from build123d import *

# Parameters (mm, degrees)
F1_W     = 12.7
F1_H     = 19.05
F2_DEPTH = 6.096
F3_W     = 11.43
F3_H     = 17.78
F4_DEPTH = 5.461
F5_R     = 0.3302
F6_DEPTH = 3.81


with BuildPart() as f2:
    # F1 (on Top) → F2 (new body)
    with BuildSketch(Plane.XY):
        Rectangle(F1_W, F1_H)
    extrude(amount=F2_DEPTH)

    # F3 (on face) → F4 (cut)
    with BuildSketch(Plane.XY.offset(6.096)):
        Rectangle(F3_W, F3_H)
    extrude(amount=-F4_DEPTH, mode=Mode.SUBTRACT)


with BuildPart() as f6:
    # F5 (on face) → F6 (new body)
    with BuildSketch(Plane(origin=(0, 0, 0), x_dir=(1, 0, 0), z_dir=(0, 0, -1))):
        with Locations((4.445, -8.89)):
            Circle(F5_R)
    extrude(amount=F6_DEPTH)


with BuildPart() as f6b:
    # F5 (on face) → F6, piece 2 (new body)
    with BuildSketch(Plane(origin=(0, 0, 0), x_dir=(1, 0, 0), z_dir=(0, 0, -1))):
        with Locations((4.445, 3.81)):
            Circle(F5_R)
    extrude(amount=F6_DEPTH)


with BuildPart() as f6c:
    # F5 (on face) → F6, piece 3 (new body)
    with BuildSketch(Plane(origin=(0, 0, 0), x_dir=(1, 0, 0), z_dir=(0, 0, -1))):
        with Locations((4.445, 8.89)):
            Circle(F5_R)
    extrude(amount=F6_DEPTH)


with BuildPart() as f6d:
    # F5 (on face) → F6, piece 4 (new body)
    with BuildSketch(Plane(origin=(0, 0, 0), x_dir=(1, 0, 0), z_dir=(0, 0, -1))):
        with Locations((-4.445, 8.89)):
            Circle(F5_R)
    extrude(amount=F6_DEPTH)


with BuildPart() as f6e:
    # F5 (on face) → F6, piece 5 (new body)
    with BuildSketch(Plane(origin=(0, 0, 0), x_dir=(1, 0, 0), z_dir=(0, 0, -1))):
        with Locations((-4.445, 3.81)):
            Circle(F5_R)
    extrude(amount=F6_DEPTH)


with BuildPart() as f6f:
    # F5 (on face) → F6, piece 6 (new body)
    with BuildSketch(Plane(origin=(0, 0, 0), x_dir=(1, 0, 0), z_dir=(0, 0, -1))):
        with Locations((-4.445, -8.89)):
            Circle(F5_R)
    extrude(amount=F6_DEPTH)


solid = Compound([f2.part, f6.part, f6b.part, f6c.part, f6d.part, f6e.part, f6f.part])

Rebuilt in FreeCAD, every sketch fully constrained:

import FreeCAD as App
import Part
import Sketcher
Q = App.Units.Quantity

doc = App.newDocument("Part")
body = doc.addObject("PartDesign::Body", "Body")

sketch1 = body.newObject("Sketcher::SketchObject", "Sketch")
sketch1.AttachmentSupport = (doc.getObject("XY_Plane"), [""])
sketch1.MapMode = "FlatFace"
sketch1.addGeometry(Part.LineSegment(App.Vector(-6, 10, 0), App.Vector(-6, -10, 0)), False)
sketch1.addGeometry(Part.LineSegment(App.Vector(-6, -10, 0), App.Vector(6, -10, 0)), False)
sketch1.addGeometry(Part.LineSegment(App.Vector(6, -10, 0), App.Vector(6, 10, 0)), False)
sketch1.addGeometry(Part.LineSegment(App.Vector(6, 10, 0), App.Vector(-6, 10, 0)), False)
sketch1.addConstraint(Sketcher.Constraint("Coincident", 0, 2, 1, 1))
sketch1.addConstraint(Sketcher.Constraint("Coincident", 1, 2, 2, 1))
sketch1.addConstraint(Sketcher.Constraint("Coincident", 2, 2, 3, 1))
sketch1.addConstraint(Sketcher.Constraint("Coincident", 3, 2, 0, 1))
sketch1.addConstraint(Sketcher.Constraint("Vertical", 0))
sketch1.addConstraint(Sketcher.Constraint("Horizontal", 1))
sketch1.addConstraint(Sketcher.Constraint("Vertical", 2))
sketch1.addConstraint(Sketcher.Constraint("Horizontal", 3))
sketch1.addConstraint(Sketcher.Constraint("Symmetric", 0, 2, 2, 2, -1, 1))
sketch1.addConstraint(Sketcher.Constraint("DistanceX", 1, 1, 1, 2, Q("0.5 in")))
sketch1.addConstraint(Sketcher.Constraint("DistanceY", 0, 2, 0, 1, Q("0.75 in")))
pad1 = body.newObject("PartDesign::Pad", "Pad")
pad1.Profile = sketch1
pad1.Length = Q("0.24 in")

sketch2 = body.newObject("Sketcher::SketchObject", "Sketch001")
sketch2.AttachmentSupport = (doc.getObject("XY_Plane"), [""])
sketch2.MapMode = "FlatFace"
sketch2.AttachmentOffset = App.Placement(App.Vector(0, 0, 0.24 * 25.4), App.Rotation())
sketch2.addGeometry(Part.LineSegment(App.Vector(-6, 9, 0), App.Vector(-6, -9, 0)), False)
sketch2.addGeometry(Part.LineSegment(App.Vector(-6, -9, 0), App.Vector(6, -9, 0)), False)
sketch2.addGeometry(Part.LineSegment(App.Vector(6, -9, 0), App.Vector(6, 9, 0)), False)
sketch2.addGeometry(Part.LineSegment(App.Vector(6, 9, 0), App.Vector(-6, 9, 0)), False)
sketch2.addConstraint(Sketcher.Constraint("Coincident", 0, 2, 1, 1))
sketch2.addConstraint(Sketcher.Constraint("Coincident", 1, 2, 2, 1))
sketch2.addConstraint(Sketcher.Constraint("Coincident", 2, 2, 3, 1))
sketch2.addConstraint(Sketcher.Constraint("Coincident", 3, 2, 0, 1))
sketch2.addConstraint(Sketcher.Constraint("Vertical", 0))
sketch2.addConstraint(Sketcher.Constraint("Horizontal", 1))
sketch2.addConstraint(Sketcher.Constraint("Vertical", 2))
sketch2.addConstraint(Sketcher.Constraint("Horizontal", 3))
sketch2.addConstraint(Sketcher.Constraint("Symmetric", 0, 2, 2, 2, -1, 1))
sketch2.addConstraint(Sketcher.Constraint("DistanceY", 0, 2, 0, 1, Q("0.7 in")))
sketch2.addConstraint(Sketcher.Constraint("DistanceX", 1, 1, 1, 2, Q("0.45 in")))
pocket1 = body.newObject("PartDesign::Pocket", "Pocket")
pocket1.Profile = sketch2
pocket1.Length = Q("0.215 in")
body2 = doc.addObject("PartDesign::Body", "Body001")

sketch3 = body2.newObject("Sketcher::SketchObject", "Sketch002")
sketch3.AttachmentSupport = (doc.getObject("XY_Plane001"), [""])
sketch3.MapMode = "FlatFace"
sketch3.addGeometry(Part.Circle(App.Vector(4.45, 8.89, 0), App.Vector(0, 0, 1), 0.33), False)
sketch3.addConstraint(Sketcher.Constraint("Diameter", 0, Q("0.026 in")))
sketch3.addConstraint(Sketcher.Constraint("DistanceY", -1, 1, 0, 3, Q("0.35 in")))
sketch3.addConstraint(Sketcher.Constraint("DistanceX", -1, 1, 0, 3, Q("0.175 in")))
pad2 = body2.newObject("PartDesign::Pad", "Pad001")
pad2.Profile = sketch3
pad2.Length = Q("0.15 in")
pad2.Reversed = True
body3 = doc.addObject("PartDesign::Body", "Body002")

sketch4 = body3.newObject("Sketcher::SketchObject", "Sketch003")
sketch4.AttachmentSupport = (doc.getObject("XY_Plane002"), [""])
sketch4.MapMode = "FlatFace"
sketch4.addGeometry(Part.Circle(App.Vector(4.45, -3.81, 0), App.Vector(0, 0, 1), 0.33), False)
sketch4.addConstraint(Sketcher.Constraint("Diameter", 0, Q("0.026 in")))
sketch4.addConstraint(Sketcher.Constraint("DistanceY", 0, 3, -1, 1, Q("0.15 in")))
sketch4.addConstraint(Sketcher.Constraint("DistanceX", -1, 1, 0, 3, Q("0.175 in")))
pad3 = body3.newObject("PartDesign::Pad", "Pad002")
pad3.Profile = sketch4
pad3.Length = Q("0.15 in")
pad3.Reversed = True
body4 = doc.addObject("PartDesign::Body", "Body003")

sketch5 = body4.newObject("Sketcher::SketchObject", "Sketch004")
sketch5.AttachmentSupport = (doc.getObject("XY_Plane003"), [""])
sketch5.MapMode = "FlatFace"
sketch5.addGeometry(Part.Circle(App.Vector(4.45, -8.89, 0), App.Vector(0, 0, 1), 0.33), False)
sketch5.addConstraint(Sketcher.Constraint("Diameter", 0, Q("0.026 in")))
sketch5.addConstraint(Sketcher.Constraint("DistanceY", 0, 3, -1, 1, Q("0.35 in")))
sketch5.addConstraint(Sketcher.Constraint("DistanceX", -1, 1, 0, 3, Q("0.175 in")))
pad4 = body4.newObject("PartDesign::Pad", "Pad003")
pad4.Profile = sketch5
pad4.Length = Q("0.15 in")
pad4.Reversed = True
body5 = doc.addObject("PartDesign::Body", "Body004")

sketch6 = body5.newObject("Sketcher::SketchObject", "Sketch005")
sketch6.AttachmentSupport = (doc.getObject("XY_Plane004"), [""])
sketch6.MapMode = "FlatFace"
sketch6.addGeometry(Part.Circle(App.Vector(-4.45, -8.89, 0), App.Vector(0, 0, 1), 0.33), False)
sketch6.addConstraint(Sketcher.Constraint("Diameter", 0, Q("0.026 in")))
sketch6.addConstraint(Sketcher.Constraint("DistanceY", 0, 3, -1, 1, Q("0.35 in")))
sketch6.addConstraint(Sketcher.Constraint("DistanceX", 0, 3, -1, 1, Q("0.175 in")))
pad5 = body5.newObject("PartDesign::Pad", "Pad004")
pad5.Profile = sketch6
pad5.Length = Q("0.15 in")
pad5.Reversed = True
body6 = doc.addObject("PartDesign::Body", "Body005")

sketch7 = body6.newObject("Sketcher::SketchObject", "Sketch006")
sketch7.AttachmentSupport = (doc.getObject("XY_Plane005"), [""])
sketch7.MapMode = "FlatFace"
sketch7.addGeometry(Part.Circle(App.Vector(-4.45, -3.81, 0), App.Vector(0, 0, 1), 0.33), False)
sketch7.addConstraint(Sketcher.Constraint("Diameter", 0, Q("0.026 in")))
sketch7.addConstraint(Sketcher.Constraint("DistanceY", 0, 3, -1, 1, Q("0.15 in")))
sketch7.addConstraint(Sketcher.Constraint("DistanceX", 0, 3, -1, 1, Q("0.175 in")))
pad6 = body6.newObject("PartDesign::Pad", "Pad005")
pad6.Profile = sketch7
pad6.Length = Q("0.15 in")
pad6.Reversed = True
body7 = doc.addObject("PartDesign::Body", "Body006")

sketch8 = body7.newObject("Sketcher::SketchObject", "Sketch007")
sketch8.AttachmentSupport = (doc.getObject("XY_Plane006"), [""])
sketch8.MapMode = "FlatFace"
sketch8.addGeometry(Part.Circle(App.Vector(-4.45, 8.89, 0), App.Vector(0, 0, 1), 0.33), False)
sketch8.addConstraint(Sketcher.Constraint("Diameter", 0, Q("0.026 in")))
sketch8.addConstraint(Sketcher.Constraint("DistanceY", -1, 1, 0, 3, Q("0.35 in")))
sketch8.addConstraint(Sketcher.Constraint("DistanceX", 0, 3, -1, 1, Q("0.175 in")))
pad7 = body7.newObject("PartDesign::Pad", "Pad006")
pad7.Profile = sketch8
pad7.Length = Q("0.15 in")
pad7.Reversed = True

doc.recompute()
